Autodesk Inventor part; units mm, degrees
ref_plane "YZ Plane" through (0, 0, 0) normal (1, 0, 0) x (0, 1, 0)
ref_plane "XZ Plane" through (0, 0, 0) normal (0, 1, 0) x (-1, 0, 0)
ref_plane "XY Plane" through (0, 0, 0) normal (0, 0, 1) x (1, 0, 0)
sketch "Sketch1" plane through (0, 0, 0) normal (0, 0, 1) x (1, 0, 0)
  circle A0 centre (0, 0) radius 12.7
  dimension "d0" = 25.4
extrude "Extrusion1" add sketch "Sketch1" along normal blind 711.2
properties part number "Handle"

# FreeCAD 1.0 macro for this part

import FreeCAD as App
import Part
import Sketcher

V = App.Vector
Q = App.Units.Quantity

doc = App.newDocument("Part")
body = doc.addObject("PartDesign::Body", "Body")

# Sketch on XY plane
sketch1 = doc.addObject("Sketcher::SketchObject", "Sketch")
body.addObject(sketch1)
sketch1.AttachmentSupport = (doc.XY_Plane, [""])
sketch1.MapMode = "FlatFace"
sketch1.addGeometry(Part.Circle(V(0, 0, 0), V(0, 0, 1), 13), False)
sketch1.addConstraint(Sketcher.Constraint("Coincident", 0, 3, -1, 1))
sketch1.addConstraint(Sketcher.Constraint("Diameter", 0, Q("1 in")))
pad1 = doc.addObject("PartDesign::Pad", "Pad")
body.addObject(pad1)
pad1.Profile = sketch1
pad1.Length = Q("28 in")

doc.recompute()
